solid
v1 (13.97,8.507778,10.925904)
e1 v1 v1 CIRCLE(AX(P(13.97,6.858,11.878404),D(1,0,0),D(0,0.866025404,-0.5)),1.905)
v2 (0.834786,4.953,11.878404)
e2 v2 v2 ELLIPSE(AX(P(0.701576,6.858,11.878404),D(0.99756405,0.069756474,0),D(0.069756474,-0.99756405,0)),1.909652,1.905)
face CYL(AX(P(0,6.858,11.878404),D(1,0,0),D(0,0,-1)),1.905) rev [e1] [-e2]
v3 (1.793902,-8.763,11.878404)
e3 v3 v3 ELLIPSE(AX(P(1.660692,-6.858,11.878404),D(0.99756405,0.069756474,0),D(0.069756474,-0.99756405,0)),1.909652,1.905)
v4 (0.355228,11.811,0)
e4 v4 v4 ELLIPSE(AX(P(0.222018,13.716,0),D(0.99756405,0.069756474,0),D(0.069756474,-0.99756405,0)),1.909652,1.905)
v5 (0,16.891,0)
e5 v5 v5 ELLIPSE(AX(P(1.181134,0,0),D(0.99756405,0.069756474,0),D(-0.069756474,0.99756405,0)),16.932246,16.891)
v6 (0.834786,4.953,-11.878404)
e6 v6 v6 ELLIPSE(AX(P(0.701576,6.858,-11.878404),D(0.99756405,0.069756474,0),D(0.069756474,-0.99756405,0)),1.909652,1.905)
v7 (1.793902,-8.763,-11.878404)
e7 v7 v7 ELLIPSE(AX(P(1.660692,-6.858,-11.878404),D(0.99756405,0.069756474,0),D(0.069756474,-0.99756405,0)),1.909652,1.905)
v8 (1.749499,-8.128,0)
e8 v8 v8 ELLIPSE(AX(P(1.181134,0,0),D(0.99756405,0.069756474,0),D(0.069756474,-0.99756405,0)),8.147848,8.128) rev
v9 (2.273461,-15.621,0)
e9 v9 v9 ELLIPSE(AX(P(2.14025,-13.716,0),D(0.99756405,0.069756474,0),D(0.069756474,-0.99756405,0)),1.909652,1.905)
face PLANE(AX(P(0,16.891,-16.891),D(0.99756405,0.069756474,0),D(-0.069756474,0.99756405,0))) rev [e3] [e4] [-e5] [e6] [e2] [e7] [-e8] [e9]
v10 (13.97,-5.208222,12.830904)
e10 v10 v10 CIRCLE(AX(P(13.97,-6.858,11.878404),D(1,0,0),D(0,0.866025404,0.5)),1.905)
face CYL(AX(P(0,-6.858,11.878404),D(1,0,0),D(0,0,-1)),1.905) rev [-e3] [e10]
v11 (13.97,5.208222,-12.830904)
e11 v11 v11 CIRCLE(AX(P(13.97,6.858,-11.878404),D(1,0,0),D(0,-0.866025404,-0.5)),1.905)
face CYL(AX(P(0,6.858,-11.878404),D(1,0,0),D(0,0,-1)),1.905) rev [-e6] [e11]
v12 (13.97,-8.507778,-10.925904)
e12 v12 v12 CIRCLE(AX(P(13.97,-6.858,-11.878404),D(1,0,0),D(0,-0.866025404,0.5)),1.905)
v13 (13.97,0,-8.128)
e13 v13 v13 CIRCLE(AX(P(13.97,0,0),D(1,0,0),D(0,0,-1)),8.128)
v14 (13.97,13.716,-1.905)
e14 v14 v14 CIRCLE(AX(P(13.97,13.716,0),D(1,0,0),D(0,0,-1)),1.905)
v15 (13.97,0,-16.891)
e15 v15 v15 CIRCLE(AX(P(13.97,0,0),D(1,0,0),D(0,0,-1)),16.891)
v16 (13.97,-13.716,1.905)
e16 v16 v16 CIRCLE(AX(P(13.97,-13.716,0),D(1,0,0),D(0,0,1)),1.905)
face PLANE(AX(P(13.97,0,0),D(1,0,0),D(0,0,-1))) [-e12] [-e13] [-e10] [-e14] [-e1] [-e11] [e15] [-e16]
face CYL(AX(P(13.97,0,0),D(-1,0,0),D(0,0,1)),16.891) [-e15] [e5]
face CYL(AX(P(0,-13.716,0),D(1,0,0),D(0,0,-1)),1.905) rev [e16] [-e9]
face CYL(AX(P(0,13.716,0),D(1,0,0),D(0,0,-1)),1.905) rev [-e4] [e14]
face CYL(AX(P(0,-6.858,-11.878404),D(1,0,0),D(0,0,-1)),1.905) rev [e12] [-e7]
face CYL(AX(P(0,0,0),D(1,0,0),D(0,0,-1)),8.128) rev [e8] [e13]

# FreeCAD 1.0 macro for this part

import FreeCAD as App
import Part
import Sketcher
from FreeCAD import Vector
Q = App.Units.Quantity

doc = App.newDocument("Part")
body = doc.addObject("PartDesign::Body", "Body")

sketch1 = body.newObject("Sketcher::SketchObject", "Sketch")
sketch1.AttachmentSupport = (doc.getObject("YZ_Plane"), [""])
sketch1.MapMode = "FlatFace"
sketch1.addGeometry(Part.Circle(Vector(0, 0, 0), Vector(0, 0, 1), 17), False)
sketch1.addConstraint(Sketcher.Constraint("Coincident", 0, 3, -1, 1))
sketch1.addConstraint(Sketcher.Constraint("Diameter", 0, Q("1.33 in")))
pad1 = body.newObject("PartDesign::Pad", "Pad")
pad1.Profile = sketch1
pad1.Length = Q("0.55 in")

sketch2 = body.newObject("Sketcher::SketchObject", "Sketch001")
sketch2.AttachmentSupport = (doc.getObject("YZ_Plane"), [""])
sketch2.MapMode = "FlatFace"
sketch2.AttachmentOffset = App.Placement(Vector(0, 0, 0.55 * 25.4), App.Rotation())
sketch2.addGeometry(Part.Circle(Vector(0, 0, 0), Vector(0, 0, 1), 8), False)
sketch2.addConstraint(Sketcher.Constraint("Coincident", 0, 3, -1, 1))
sketch2.addConstraint(Sketcher.Constraint("Diameter", 0, Q("0.64 in")))
pocket1 = body.newObject("PartDesign::Pocket", "Pocket")
pocket1.Profile = sketch2
pocket1.Type = "ThroughAll"

sketch3 = body.newObject("Sketcher::SketchObject", "Sketch002")
sketch3.AttachmentSupport = (doc.getObject("XY_Plane"), [""])
sketch3.MapMode = "FlatFace"
sketch3.addGeometry(Part.LineSegment(Vector(2.4, -16.9, 0), Vector(0, 16.9, 0)), False)
sketch3.addGeometry(Part.LineSegment(Vector(0, 16.9, 0), Vector(0, -16.9, 0)), False)
sketch3.addGeometry(Part.LineSegment(Vector(0, -16.9, 0), Vector(2.4, -16.9, 0)), False)
sketch3.addConstraint(Sketcher.Constraint("Coincident", 0, 2, 1, 1))
sketch3.addConstraint(Sketcher.Constraint("Coincident", 1, 2, 2, 1))
sketch3.addConstraint(Sketcher.Constraint("Coincident", 2, 2, 0, 1))
sketch3.addConstraint(Sketcher.Constraint("Vertical", 1))
sketch3.addConstraint(Sketcher.Constraint("Horizontal", 2))
sketch3.addConstraint(Sketcher.Constraint("Symmetric", 0, 2, 1, 2, -1, 1))
sketch3.addConstraint(Sketcher.Constraint("Angle", 0, Q("94 deg")))
sketch3.addConstraint(Sketcher.Constraint("DistanceY", 1, 2, 1, 1, Q("1.33 in")))
pocket2 = body.newObject("PartDesign::Pocket", "Pocket001")
pocket2.Profile = sketch3
pocket2.Type = "ThroughAll"
pocket2.Midplane = True

sketch4 = body.newObject("Sketcher::SketchObject", "Sketch003")
sketch4.AttachmentSupport = (doc.getObject("YZ_Plane"), [""])
sketch4.MapMode = "FlatFace"
sketch4.AttachmentOffset = App.Placement(Vector(0, 0, 0.55 * 25.4), App.Rotation())
sketch4.addGeometry(Part.Circle(Vector(13.7, 0, 0), Vector(0, 0, 1), 1.9), False)
sketch4.addConstraint(Sketcher.Constraint("PointOnObject", 0, 3, -1))
sketch4.addConstraint(Sketcher.Constraint("Diameter", 0, Q("0.15 in")))
sketch4.addConstraint(Sketcher.Constraint("DistanceX", -1, 1, 0, 3, Q("0.54 in")))
pocket3 = body.newObject("PartDesign::Pocket", "Pocket002")
pocket3.Profile = sketch4
pocket3.Type = "ThroughAll"
doc.recompute()

polarpattern = body.newObject("PartDesign::PolarPattern", "PolarPattern")
polarpattern.Originals = [pocket3]
polarpattern.Axis = (doc.getObject("X_Axis"), [""])
polarpattern.Angle = 360
polarpattern.Occurrences = 6
body.Tip = polarpattern

doc.recompute()
